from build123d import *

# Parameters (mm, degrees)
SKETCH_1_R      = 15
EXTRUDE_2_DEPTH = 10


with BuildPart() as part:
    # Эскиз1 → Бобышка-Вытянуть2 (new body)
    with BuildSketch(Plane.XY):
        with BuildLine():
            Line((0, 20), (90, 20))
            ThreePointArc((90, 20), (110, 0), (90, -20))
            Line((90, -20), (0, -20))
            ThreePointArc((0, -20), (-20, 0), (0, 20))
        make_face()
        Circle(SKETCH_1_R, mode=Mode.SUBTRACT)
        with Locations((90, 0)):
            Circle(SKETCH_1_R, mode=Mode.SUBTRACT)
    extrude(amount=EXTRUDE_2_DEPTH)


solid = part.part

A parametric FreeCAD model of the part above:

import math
import FreeCAD as App
import Part
import Sketcher

V = App.Vector
Q = App.Units.Quantity

doc = App.newDocument("Part")
body = doc.addObject("PartDesign::Body", "Body")

# Sketch on XY plane
sketch1 = body.newObject("Sketcher::SketchObject", "Sketch")
sketch1.AttachmentSupport = (doc.getObject("XY_Plane"), [""])
sketch1.MapMode = "FlatFace"
sketch1.addGeometry([
    Part.LineSegment(V(90, 20, 0), V(0, 20, 0)),  # 0
    Part.ArcOfCircle(Part.Circle(V(0, 0, 0), V(0, 0, 1), 20), math.radians(90), math.radians(270)),  # 1
    Part.LineSegment(V(0, -20, 0), V(90, -20, 0)),  # 2
    Part.ArcOfCircle(Part.Circle(V(90, 0, 0), V(0, 0, 1), 20), math.radians(-90), math.radians(90)),  # 3
    Part.Circle(V(90, 0, 0), V(0, 0, 1), 15),  # 4
    Part.Circle(V(0, 0, 0), V(0, 0, 1), 15),  # 5
], False)
sketch1.addConstraint([
    Sketcher.Constraint("Tangent", 0, 2, 1, 1),
    Sketcher.Constraint("Tangent", 1, 2, 2, 1),
    Sketcher.Constraint("Tangent", 2, 2, 3, 1),
    Sketcher.Constraint("Tangent", 3, 2, 0, 1),
    Sketcher.Constraint("Horizontal", 0),
    Sketcher.Constraint("Horizontal", 2),
    Sketcher.Constraint("Coincident", 1, 3, -1, 1),
    Sketcher.Constraint("Coincident", 5, 3, -1, 1),
    Sketcher.Constraint("Coincident", 4, 3, 3, 3),
    Sketcher.Constraint("Equal", 4, 5),
    Sketcher.Constraint("Diameter", 4, Q("30 mm")),
    Sketcher.Constraint("Radius", 1, Q("20 mm")),
    Sketcher.Constraint("DistanceX", 0, 2, 0, 1, Q("90 mm")),
])
pad1 = body.newObject("PartDesign::Pad", "Pad")
pad1.Profile = sketch1
pad1.Length = 10

doc.recompute()
